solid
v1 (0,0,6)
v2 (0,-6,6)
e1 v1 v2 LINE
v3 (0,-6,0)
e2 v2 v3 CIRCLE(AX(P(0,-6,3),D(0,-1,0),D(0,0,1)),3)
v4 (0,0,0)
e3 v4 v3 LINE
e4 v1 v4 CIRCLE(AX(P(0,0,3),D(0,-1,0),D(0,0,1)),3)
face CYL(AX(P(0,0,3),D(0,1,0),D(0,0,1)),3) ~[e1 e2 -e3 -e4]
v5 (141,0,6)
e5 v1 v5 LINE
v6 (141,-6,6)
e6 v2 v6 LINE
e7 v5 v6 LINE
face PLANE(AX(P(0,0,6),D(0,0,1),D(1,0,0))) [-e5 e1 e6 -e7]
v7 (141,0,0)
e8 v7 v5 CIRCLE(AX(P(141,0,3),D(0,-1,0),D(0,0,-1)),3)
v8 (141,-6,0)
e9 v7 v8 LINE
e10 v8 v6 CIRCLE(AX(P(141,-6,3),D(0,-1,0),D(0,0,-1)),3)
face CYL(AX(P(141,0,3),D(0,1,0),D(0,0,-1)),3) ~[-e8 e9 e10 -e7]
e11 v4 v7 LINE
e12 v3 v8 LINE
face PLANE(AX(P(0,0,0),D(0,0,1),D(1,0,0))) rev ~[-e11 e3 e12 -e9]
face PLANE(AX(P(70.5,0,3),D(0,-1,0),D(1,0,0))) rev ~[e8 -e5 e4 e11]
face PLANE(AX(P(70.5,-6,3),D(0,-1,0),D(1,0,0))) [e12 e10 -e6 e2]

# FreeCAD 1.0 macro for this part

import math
import FreeCAD as App
import Part
import Sketcher
from FreeCAD import Vector

doc = App.newDocument("Part")
params = doc.addObject("Spreadsheet::Sheet", "Params")
for row, (alias, value) in enumerate([
    ("sketch1_radius", "3 mm"),
    ("sketch1_width", "141 mm"),
    ("pad1_length", "6 mm"),
], start=1):
    params.set(f"A{row}", alias)
    params.set(f"B{row}", "=" + value)
    params.setAlias(f"B{row}", alias)

body = doc.addObject("PartDesign::Body", "Body")

# Sketch on XZ plane
sketch1 = body.newObject("Sketcher::SketchObject", "Sketch")
sketch1.AttachmentSupport = (doc.getObject("XZ_Plane"), [""])
sketch1.MapMode = "FlatFace"
sketch1.addGeometry([
    Part.LineSegment(Vector(0, 0, 0), Vector(141, 0, 0)),
    Part.ArcOfCircle(Part.Circle(Vector(141, 3, 0), Vector(0, 0, 1), 3), math.radians(-90), math.radians(90)),
    Part.LineSegment(Vector(141, 6, 0), Vector(0, 6, 0)),
    Part.ArcOfCircle(Part.Circle(Vector(0, 3, 0), Vector(0, 0, 1), 3), math.radians(90), math.radians(270)),
], False)
sketch1.addConstraint([
    Sketcher.Constraint("Tangent", 0, 2, 1, 1),
    Sketcher.Constraint("Tangent", 1, 2, 2, 1),
    Sketcher.Constraint("Tangent", 2, 2, 3, 1),
    Sketcher.Constraint("Tangent", 3, 2, 0, 1),
    Sketcher.Constraint("Horizontal", 0),
    Sketcher.Constraint("Horizontal", 2),
    Sketcher.Constraint("Coincident", 3, 2, -1, 1),
    Sketcher.Constraint("Radius", 1, 3.0),
    Sketcher.Constraint("DistanceX", 0, 1, 0, 2, 141.0),
])
sketch1.setExpression("Constraints[7]", "Params.sketch1_radius")
sketch1.setExpression("Constraints[8]", "Params.sketch1_width")
pad1 = body.newObject("PartDesign::Pad", "Pad")
pad1.Profile = sketch1
pad1.setExpression("Length", "Params.pad1_length")

doc.recompute()
